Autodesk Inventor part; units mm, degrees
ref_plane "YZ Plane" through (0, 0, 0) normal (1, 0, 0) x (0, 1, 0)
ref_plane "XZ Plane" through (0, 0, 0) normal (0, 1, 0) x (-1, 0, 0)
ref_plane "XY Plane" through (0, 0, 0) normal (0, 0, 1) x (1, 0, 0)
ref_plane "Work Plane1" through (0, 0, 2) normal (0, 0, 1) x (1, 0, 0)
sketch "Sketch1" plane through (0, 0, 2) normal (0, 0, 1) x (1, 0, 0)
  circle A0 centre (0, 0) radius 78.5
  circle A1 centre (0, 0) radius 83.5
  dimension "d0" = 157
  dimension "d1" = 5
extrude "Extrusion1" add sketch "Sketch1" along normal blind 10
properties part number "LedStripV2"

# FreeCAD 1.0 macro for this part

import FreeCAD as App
import Part
import Sketcher
Q = App.Units.Quantity

doc = App.newDocument("Part")
body = doc.addObject("PartDesign::Body", "Body")

# Sketch on XY plane
sketch1 = body.newObject("Sketcher::SketchObject", "Sketch")
sketch1.AttachmentSupport = (doc.getObject("XY_Plane"), [""])
sketch1.MapMode = "FlatFace"
sketch1.AttachmentOffset = App.Placement(App.Vector(0, 0, 2), App.Rotation())
sketch1.addGeometry([
    Part.Circle(App.Vector(0, 0, 0), App.Vector(0, 0, 1), 83.5),
    Part.Circle(App.Vector(0, 0, 0), App.Vector(0, 0, 1), 78.5),
], False)
sketch1.addConstraint([
    Sketcher.Constraint("Coincident", 0, 3, -1, 1),
    Sketcher.Constraint("Coincident", 1, 3, -1, 1),
    Sketcher.Constraint("Diameter", 1, Q("157 mm")),
    Sketcher.Constraint("Diameter", 0, Q("167 mm")),
])
pad1 = body.newObject("PartDesign::Pad", "Pad")
pad1.Profile = sketch1
pad1.Length = 10

doc.recompute()
